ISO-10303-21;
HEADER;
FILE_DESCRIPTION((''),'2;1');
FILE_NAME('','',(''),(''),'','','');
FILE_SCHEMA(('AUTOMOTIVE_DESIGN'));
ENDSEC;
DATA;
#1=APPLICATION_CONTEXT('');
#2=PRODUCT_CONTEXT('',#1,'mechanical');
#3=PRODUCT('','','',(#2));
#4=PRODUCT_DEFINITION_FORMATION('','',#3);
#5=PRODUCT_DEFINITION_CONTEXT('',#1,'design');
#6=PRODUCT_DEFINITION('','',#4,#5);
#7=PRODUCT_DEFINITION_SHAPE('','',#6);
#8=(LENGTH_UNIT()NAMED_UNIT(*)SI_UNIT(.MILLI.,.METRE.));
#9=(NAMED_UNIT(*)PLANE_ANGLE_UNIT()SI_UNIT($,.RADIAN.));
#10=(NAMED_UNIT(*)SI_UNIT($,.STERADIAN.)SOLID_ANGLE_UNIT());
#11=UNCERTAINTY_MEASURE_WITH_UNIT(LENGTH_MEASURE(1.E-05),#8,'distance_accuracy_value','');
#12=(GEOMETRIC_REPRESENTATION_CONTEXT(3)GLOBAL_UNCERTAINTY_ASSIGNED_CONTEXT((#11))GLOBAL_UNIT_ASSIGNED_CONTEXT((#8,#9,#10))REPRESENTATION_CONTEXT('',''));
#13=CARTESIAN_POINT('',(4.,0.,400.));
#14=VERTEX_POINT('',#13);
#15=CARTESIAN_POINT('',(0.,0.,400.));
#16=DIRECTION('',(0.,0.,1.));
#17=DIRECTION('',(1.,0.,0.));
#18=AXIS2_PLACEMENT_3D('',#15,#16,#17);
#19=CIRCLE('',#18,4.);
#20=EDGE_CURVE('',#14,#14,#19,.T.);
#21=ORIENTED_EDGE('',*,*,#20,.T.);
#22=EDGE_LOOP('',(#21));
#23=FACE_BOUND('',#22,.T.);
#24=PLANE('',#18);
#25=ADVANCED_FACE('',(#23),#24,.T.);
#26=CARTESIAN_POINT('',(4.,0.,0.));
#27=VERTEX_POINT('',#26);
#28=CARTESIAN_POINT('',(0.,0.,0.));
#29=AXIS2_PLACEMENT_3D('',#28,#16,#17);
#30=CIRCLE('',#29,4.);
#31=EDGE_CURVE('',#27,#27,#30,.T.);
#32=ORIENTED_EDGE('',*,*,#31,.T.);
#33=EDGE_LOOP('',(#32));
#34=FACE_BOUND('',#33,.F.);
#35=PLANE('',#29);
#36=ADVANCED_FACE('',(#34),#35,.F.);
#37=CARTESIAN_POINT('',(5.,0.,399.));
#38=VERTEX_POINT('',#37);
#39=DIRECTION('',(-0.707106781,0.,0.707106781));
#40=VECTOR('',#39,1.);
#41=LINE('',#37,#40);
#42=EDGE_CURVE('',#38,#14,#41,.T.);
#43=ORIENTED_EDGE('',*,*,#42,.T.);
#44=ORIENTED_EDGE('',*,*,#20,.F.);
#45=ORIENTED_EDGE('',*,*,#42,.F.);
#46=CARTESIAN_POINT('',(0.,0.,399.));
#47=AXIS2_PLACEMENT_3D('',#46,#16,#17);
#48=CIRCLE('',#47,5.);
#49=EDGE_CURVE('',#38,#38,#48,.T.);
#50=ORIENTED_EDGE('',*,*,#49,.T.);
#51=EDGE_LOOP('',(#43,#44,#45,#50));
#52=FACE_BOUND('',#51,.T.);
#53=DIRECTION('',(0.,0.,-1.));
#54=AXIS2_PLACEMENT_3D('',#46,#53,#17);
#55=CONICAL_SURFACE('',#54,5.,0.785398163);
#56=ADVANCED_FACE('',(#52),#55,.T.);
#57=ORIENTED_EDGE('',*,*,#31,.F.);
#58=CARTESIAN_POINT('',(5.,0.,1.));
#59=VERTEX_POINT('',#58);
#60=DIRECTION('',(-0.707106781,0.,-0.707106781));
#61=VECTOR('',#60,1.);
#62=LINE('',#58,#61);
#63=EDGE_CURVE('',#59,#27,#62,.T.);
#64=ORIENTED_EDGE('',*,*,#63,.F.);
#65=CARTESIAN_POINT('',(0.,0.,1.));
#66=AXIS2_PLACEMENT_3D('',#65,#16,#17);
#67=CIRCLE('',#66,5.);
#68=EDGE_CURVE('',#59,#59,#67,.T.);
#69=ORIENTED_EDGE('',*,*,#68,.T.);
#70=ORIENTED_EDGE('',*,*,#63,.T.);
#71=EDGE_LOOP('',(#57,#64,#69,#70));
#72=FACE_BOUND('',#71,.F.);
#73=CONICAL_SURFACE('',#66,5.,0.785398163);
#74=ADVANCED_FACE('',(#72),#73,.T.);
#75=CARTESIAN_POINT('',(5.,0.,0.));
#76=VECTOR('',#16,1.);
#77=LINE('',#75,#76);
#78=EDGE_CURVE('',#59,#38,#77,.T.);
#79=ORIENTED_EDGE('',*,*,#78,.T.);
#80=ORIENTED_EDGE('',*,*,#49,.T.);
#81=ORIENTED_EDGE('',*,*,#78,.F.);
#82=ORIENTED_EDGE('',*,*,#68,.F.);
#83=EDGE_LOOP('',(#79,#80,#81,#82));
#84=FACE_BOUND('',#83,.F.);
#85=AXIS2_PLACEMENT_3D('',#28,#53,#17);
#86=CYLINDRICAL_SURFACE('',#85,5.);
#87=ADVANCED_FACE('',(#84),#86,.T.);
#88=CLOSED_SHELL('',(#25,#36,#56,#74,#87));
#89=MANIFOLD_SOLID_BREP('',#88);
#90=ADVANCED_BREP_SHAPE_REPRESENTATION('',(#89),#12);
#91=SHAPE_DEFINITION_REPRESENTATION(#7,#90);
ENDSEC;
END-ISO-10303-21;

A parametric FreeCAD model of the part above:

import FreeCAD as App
import Part
import Sketcher
from FreeCAD import Vector


def edges_at(feature, points):
    """Names of the edges that pass closest to the given points."""
    edges = feature.Shape.Edges
    near = lambda p: min(range(len(edges)), key=lambda i: edges[i].distToShape(Part.Vertex(*p))[0])
    return sorted({f"Edge{near(p) + 1}" for p in points})

doc = App.newDocument("Part")
body = doc.addObject("PartDesign::Body", "Body")

sketch1 = body.newObject("Sketcher::SketchObject", "Sketch")
sketch1.AttachmentSupport = (doc.getObject("XY_Plane"), [""])
sketch1.MapMode = "FlatFace"
sketch1.addGeometry(Part.Circle(Vector(0, 0, 0), Vector(0, 0, 1), 5), False)
sketch1.addConstraint(Sketcher.Constraint("Coincident", 0, 3, -1, 1))
sketch1.addConstraint(Sketcher.Constraint("Diameter", 0, 10.0))
pad1 = body.newObject("PartDesign::Pad", "Pad")
pad1.Profile = sketch1
pad1.Length = 400
doc.recompute()

chamfer = body.newObject("PartDesign::Chamfer", "Chamfer")
chamfer.Base = (pad1, edges_at(pad1, [(-5, 0, 400), (-5, 0, 0)]))
chamfer.Size = 1

doc.recompute()
